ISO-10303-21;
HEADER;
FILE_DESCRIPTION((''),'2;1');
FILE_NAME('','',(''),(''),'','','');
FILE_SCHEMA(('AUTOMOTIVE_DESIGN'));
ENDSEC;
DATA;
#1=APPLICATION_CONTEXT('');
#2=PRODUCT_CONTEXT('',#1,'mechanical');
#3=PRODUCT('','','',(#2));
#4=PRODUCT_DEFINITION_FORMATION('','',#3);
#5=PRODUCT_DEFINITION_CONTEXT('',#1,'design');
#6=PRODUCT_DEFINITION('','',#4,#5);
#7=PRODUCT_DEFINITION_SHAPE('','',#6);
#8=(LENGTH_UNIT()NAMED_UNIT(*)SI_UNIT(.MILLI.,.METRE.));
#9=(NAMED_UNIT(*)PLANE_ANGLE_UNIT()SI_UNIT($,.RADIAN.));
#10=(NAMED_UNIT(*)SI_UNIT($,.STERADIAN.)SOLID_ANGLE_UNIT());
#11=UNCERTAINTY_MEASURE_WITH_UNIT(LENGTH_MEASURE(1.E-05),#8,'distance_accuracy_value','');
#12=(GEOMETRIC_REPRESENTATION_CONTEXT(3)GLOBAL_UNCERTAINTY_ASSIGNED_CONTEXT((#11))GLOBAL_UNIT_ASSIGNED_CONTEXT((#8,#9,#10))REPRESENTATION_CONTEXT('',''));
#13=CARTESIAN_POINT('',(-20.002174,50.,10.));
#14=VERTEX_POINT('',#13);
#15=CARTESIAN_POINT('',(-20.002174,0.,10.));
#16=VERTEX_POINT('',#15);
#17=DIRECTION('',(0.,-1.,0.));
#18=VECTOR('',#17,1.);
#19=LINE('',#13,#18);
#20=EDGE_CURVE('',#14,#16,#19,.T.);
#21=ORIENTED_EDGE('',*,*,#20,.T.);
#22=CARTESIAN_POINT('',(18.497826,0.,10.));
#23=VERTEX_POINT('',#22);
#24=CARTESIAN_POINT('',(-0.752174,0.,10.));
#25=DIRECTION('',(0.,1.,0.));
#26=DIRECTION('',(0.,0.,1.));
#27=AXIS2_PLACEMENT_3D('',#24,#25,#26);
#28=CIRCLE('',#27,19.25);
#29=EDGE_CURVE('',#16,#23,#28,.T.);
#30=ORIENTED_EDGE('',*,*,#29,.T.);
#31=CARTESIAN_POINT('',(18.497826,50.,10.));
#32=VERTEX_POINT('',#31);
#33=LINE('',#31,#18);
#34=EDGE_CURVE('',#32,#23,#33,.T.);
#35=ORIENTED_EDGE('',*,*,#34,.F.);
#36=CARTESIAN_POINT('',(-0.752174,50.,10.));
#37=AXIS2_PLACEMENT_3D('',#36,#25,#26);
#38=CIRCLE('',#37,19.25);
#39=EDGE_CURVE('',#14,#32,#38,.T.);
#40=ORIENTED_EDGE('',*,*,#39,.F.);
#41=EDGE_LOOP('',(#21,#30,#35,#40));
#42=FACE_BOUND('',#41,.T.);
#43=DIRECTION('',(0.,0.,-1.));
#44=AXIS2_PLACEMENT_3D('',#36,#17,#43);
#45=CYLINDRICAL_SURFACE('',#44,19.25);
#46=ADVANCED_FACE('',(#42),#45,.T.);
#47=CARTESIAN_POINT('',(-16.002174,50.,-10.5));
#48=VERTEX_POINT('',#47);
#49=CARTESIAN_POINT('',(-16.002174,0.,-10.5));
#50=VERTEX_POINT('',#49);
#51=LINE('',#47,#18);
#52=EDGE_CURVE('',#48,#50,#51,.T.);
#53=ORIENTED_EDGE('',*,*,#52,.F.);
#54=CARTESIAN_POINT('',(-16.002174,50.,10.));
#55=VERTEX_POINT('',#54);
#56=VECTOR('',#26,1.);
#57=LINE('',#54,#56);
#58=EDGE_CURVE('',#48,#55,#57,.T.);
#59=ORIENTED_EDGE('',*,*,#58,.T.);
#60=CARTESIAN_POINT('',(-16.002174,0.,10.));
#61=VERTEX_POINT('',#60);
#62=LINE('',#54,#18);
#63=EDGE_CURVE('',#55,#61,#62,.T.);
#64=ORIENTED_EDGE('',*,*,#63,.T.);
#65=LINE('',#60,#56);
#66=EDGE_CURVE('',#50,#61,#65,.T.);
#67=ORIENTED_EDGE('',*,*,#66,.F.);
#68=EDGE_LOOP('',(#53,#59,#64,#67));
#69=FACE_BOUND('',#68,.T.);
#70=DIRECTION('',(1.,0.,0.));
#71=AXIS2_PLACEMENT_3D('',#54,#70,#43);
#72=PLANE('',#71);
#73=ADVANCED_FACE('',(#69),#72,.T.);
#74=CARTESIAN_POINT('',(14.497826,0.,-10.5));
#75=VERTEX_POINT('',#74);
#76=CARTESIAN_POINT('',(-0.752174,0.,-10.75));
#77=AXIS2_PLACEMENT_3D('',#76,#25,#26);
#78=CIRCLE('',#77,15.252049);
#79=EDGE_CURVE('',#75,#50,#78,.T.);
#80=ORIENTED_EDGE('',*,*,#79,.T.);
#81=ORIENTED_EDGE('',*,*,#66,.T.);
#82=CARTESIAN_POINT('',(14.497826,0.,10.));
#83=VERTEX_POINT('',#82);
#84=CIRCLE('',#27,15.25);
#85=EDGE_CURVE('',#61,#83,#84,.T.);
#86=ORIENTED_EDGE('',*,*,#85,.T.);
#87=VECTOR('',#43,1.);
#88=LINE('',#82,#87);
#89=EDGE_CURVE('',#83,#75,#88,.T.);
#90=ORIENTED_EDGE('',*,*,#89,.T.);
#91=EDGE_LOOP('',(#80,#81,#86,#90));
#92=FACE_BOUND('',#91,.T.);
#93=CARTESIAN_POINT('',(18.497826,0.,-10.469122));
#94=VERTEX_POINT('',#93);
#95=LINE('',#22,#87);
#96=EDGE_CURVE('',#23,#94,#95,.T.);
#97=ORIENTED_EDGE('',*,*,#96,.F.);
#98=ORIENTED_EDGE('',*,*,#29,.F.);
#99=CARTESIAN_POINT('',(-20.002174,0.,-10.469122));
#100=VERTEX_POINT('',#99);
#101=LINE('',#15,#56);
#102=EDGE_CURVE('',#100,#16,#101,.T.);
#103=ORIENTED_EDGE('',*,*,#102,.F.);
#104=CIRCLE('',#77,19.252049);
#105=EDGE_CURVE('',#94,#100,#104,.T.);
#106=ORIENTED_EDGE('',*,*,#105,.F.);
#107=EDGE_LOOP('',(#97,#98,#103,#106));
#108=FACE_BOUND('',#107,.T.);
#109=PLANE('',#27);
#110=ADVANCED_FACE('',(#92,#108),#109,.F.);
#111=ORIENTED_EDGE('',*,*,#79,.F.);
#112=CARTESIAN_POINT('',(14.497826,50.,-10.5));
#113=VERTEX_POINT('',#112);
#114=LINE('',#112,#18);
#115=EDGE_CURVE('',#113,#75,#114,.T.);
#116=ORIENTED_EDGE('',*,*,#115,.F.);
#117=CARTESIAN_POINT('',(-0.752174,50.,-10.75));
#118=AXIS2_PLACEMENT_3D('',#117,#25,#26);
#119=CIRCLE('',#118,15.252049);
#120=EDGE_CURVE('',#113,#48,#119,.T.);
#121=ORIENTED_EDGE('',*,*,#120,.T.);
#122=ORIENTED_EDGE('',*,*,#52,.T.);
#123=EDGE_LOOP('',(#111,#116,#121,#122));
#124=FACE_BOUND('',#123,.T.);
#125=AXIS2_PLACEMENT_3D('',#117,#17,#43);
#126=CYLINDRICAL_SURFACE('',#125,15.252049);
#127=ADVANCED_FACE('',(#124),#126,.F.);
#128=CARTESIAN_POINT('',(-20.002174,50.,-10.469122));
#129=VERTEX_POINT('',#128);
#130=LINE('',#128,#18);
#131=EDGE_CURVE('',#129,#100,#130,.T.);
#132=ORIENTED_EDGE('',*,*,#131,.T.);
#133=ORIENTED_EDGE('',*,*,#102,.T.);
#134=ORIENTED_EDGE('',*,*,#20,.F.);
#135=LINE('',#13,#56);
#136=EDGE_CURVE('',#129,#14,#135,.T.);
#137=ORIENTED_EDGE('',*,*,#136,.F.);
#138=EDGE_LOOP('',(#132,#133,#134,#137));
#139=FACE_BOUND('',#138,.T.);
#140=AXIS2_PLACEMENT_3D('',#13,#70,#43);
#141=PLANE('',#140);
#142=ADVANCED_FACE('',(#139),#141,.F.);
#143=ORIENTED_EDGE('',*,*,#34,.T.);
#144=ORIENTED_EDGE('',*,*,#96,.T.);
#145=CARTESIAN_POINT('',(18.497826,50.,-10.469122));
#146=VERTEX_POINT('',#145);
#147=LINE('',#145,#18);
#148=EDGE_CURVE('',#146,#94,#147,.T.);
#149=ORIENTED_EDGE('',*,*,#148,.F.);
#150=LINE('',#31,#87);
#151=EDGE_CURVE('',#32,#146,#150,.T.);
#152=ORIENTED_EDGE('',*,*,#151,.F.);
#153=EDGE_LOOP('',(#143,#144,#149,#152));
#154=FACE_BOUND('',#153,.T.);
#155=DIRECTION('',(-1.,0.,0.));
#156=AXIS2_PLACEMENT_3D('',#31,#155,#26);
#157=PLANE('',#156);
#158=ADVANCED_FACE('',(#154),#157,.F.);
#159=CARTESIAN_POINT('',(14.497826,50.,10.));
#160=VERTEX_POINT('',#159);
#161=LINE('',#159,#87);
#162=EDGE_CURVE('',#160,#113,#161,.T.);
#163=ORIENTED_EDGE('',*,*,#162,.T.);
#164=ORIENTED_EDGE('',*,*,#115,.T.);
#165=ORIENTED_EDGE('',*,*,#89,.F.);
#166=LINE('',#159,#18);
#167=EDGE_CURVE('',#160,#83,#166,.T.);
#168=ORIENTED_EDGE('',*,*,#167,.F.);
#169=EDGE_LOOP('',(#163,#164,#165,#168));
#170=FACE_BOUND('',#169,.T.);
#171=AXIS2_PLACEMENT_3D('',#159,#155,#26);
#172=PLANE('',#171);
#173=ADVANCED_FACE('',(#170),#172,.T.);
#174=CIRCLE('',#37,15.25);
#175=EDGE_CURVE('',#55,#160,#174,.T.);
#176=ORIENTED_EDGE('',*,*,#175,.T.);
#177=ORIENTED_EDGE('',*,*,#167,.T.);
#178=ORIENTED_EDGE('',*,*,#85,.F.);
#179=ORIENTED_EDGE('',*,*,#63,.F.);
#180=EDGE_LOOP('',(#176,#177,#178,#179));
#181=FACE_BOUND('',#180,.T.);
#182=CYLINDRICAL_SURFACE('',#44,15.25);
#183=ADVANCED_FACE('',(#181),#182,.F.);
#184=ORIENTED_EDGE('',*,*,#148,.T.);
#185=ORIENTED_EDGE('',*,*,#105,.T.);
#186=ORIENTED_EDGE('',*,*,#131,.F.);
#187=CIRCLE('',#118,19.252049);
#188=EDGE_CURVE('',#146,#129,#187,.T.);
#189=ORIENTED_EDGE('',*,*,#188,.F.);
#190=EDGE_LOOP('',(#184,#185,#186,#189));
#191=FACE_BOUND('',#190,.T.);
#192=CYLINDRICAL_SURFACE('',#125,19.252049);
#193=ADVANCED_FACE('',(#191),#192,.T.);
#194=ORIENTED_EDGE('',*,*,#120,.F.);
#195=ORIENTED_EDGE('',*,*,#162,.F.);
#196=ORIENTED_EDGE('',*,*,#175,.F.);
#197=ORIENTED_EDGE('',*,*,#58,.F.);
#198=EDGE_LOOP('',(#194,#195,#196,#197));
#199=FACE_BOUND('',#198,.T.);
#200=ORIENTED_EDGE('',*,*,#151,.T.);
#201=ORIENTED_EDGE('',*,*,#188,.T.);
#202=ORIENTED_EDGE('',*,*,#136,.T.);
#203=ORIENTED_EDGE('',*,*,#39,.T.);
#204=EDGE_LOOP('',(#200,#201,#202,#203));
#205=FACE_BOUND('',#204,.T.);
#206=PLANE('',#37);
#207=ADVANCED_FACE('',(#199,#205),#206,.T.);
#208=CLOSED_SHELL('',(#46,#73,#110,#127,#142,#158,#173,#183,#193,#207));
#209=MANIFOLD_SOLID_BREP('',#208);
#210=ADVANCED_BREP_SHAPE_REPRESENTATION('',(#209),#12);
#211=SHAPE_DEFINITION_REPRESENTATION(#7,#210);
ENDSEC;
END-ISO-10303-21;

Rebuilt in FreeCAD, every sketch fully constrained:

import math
import FreeCAD as App
import Part
import Sketcher
from FreeCAD import Vector

doc = App.newDocument("Part")
params = doc.addObject("Spreadsheet::Sheet", "Params")
for row, (alias, value) in enumerate([
    ("sketch1_radius", "19.25 mm"),
    ("sketch1_radius2", "15.25 mm"),
    ("sketch1_height", "20.5 mm"),
    ("pad1_length", "50 mm"),
], start=1):
    params.set(f"A{row}", alias)
    params.set(f"B{row}", "=" + value)
    params.setAlias(f"B{row}", alias)

body = doc.addObject("PartDesign::Body", "Body")

sketch1 = body.newObject("Sketcher::SketchObject", "Sketch")
sketch1.AttachmentSupport = (doc.getObject("XZ_Plane"), [""])
sketch1.MapMode = "FlatFace"
sketch1.addGeometry(Part.LineSegment(Vector(-20, -10, 0), Vector(-20, 10, 0)), False)
sketch1.addGeometry(Part.ArcOfCircle(Part.Circle(Vector(-1, 10, 0), Vector(0, 0, 1), 19), math.radians(0), math.radians(180)), False)
sketch1.addGeometry(Part.LineSegment(Vector(18, 10, 0), Vector(18, -10, 0)), False)
sketch1.addGeometry(Part.ArcOfCircle(Part.Circle(Vector(-1, -11, 0), Vector(0, 0, 1), 19), math.radians(179), math.radians(361)), False)
sketch1.addGeometry(Part.LineSegment(Vector(-16, 10, 0), Vector(-16, -10, 0)), False)
sketch1.addGeometry(Part.ArcOfCircle(Part.Circle(Vector(-1, -11, 0), Vector(0, 0, 1), 15), math.radians(179), math.radians(361)), False)
sketch1.addGeometry(Part.LineSegment(Vector(14, -10, 0), Vector(14, 10, 0)), False)
sketch1.addGeometry(Part.ArcOfCircle(Part.Circle(Vector(-1, 10, 0), Vector(0, 0, 1), 15), math.radians(0), math.radians(180)), False)
sketch1.addConstraint(Sketcher.Constraint("Tangent", 0, 2, 1, 2))
sketch1.addConstraint(Sketcher.Constraint("Tangent", 1, 1, 2, 1))
sketch1.addConstraint(Sketcher.Constraint("Coincident", 2, 2, 3, 2))
sketch1.addConstraint(Sketcher.Constraint("Coincident", 3, 1, 0, 1))
sketch1.addConstraint(Sketcher.Constraint("Coincident", 4, 2, 5, 1))
sketch1.addConstraint(Sketcher.Constraint("Coincident", 5, 2, 6, 1))
sketch1.addConstraint(Sketcher.Constraint("Tangent", 6, 2, 7, 1))
sketch1.addConstraint(Sketcher.Constraint("Tangent", 7, 2, 4, 1))
sketch1.addConstraint(Sketcher.Constraint("Vertical", 0))
sketch1.addConstraint(Sketcher.Constraint("Vertical", 2))
sketch1.addConstraint(Sketcher.Constraint("Vertical", 4))
sketch1.addConstraint(Sketcher.Constraint("Vertical", 6))
sketch1.addConstraint(Sketcher.Constraint("Coincident", 5, 3, 3, 3))
sketch1.addConstraint(Sketcher.Constraint("Coincident", 7, 3, 1, 3))
sketch1.addConstraint(Sketcher.Constraint("Horizontal", 2, 2, 3, 1))
sketch1.addConstraint(Sketcher.Constraint("Radius", 1, 19.25))
sketch1.addConstraint(Sketcher.Constraint("Radius", 7, 15.25))
sketch1.addConstraint(Sketcher.Constraint("DistanceY", 4, 2, 4, 1, 20.5))
sketch1.addConstraint(Sketcher.Constraint("DistanceY", -1, 1, 1, 3, 10.0))
sketch1.addConstraint(Sketcher.Constraint("DistanceY", 3, 3, -1, 1, 10.75))
sketch1.addConstraint(Sketcher.Constraint("Radius", 3, 19.252049))
sketch1.addConstraint(Sketcher.Constraint("DistanceX", 1, 3, -1, 1, 0.752174))
sketch1.setExpression("Constraints[15]", "Params.sketch1_radius")
sketch1.setExpression("Constraints[16]", "Params.sketch1_radius2")
sketch1.setExpression("Constraints[17]", "Params.sketch1_height")
pad1 = body.newObject("PartDesign::Pad", "Pad")
pad1.Profile = sketch1
pad1.setExpression("Length", "Params.pad1_length")
pad1.Reversed = True

doc.recompute()
